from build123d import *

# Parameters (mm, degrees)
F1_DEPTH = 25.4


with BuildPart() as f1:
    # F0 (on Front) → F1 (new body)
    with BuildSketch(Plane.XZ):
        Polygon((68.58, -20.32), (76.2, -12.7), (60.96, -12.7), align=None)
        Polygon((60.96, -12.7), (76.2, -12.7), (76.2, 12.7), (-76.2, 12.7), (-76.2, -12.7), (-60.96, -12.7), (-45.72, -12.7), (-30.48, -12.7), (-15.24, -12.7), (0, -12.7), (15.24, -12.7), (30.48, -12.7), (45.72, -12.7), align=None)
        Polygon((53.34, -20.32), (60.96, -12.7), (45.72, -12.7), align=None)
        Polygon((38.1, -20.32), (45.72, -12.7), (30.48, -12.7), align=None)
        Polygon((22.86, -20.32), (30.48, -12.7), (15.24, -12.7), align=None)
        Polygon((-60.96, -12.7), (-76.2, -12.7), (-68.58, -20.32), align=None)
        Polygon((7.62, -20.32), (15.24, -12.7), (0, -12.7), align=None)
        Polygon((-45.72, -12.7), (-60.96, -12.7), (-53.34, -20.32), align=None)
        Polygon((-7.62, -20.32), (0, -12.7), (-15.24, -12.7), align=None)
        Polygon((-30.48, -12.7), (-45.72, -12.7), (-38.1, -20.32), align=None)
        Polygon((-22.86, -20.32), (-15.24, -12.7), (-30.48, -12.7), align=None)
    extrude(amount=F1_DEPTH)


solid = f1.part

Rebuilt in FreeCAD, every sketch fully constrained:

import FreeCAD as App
import Part
import Sketcher
from FreeCAD import Vector
Q = App.Units.Quantity

doc = App.newDocument("Part")
body = doc.addObject("PartDesign::Body", "Body")

# Sketch on XZ plane
sketch1 = body.newObject("Sketcher::SketchObject", "Sketch")
sketch1.AttachmentSupport = (doc.getObject("XZ_Plane"), [""])
sketch1.MapMode = "FlatFace"
sketch1.addGeometry(Part.LineSegment(Vector(69, -20, 0), Vector(76, -13, 0)), False)
sketch1.addGeometry(Part.LineSegment(Vector(76, -13, 0), Vector(76, 13, 0)), False)
sketch1.addGeometry(Part.LineSegment(Vector(76, 13, 0), Vector(-76, 13, 0)), False)
sketch1.addGeometry(Part.LineSegment(Vector(-76, 13, 0), Vector(-76, -13, 0)), False)
sketch1.addGeometry(Part.LineSegment(Vector(-76, -13, 0), Vector(-69, -20, 0)), False)
sketch1.addGeometry(Part.LineSegment(Vector(-69, -20, 0), Vector(-61, -13, 0)), False)
sketch1.addGeometry(Part.LineSegment(Vector(-61, -13, 0), Vector(-53, -20, 0)), False)
sketch1.addGeometry(Part.LineSegment(Vector(-53, -20, 0), Vector(-46, -13, 0)), False)
sketch1.addGeometry(Part.LineSegment(Vector(-46, -13, 0), Vector(-38, -20, 0)), False)
sketch1.addGeometry(Part.LineSegment(Vector(-38, -20, 0), Vector(-30, -13, 0)), False)
sketch1.addGeometry(Part.LineSegment(Vector(-30, -13, 0), Vector(-23, -20, 0)), False)
sketch1.addGeometry(Part.LineSegment(Vector(-23, -20, 0), Vector(-15, -13, 0)), False)
sketch1.addGeometry(Part.LineSegment(Vector(-15, -13, 0), Vector(-8, -20, 0)), False)
sketch1.addGeometry(Part.LineSegment(Vector(-8, -20, 0), Vector(0, -13, 0)), False)
sketch1.addGeometry(Part.LineSegment(Vector(0, -13, 0), Vector(8, -20, 0)), False)
sketch1.addGeometry(Part.LineSegment(Vector(8, -20, 0), Vector(15, -13, 0)), False)
sketch1.addGeometry(Part.LineSegment(Vector(15, -13, 0), Vector(23, -20, 0)), False)
sketch1.addGeometry(Part.LineSegment(Vector(23, -20, 0), Vector(30, -13, 0)), False)
sketch1.addGeometry(Part.LineSegment(Vector(30, -13, 0), Vector(38, -20, 0)), False)
sketch1.addGeometry(Part.LineSegment(Vector(38, -20, 0), Vector(46, -13, 0)), False)
sketch1.addGeometry(Part.LineSegment(Vector(46, -13, 0), Vector(53, -20, 0)), False)
sketch1.addGeometry(Part.LineSegment(Vector(53, -20, 0), Vector(61, -13, 0)), False)
sketch1.addGeometry(Part.LineSegment(Vector(61, -13, 0), Vector(69, -20, 0)), False)
sketch1.addConstraint(Sketcher.Constraint("Coincident", 0, 2, 1, 1))
sketch1.addConstraint(Sketcher.Constraint("Coincident", 1, 2, 2, 1))
sketch1.addConstraint(Sketcher.Constraint("Coincident", 2, 2, 3, 1))
sketch1.addConstraint(Sketcher.Constraint("Coincident", 3, 2, 4, 1))
sketch1.addConstraint(Sketcher.Constraint("Coincident", 4, 2, 5, 1))
sketch1.addConstraint(Sketcher.Constraint("Coincident", 5, 2, 6, 1))
sketch1.addConstraint(Sketcher.Constraint("Coincident", 6, 2, 7, 1))
sketch1.addConstraint(Sketcher.Constraint("Coincident", 7, 2, 8, 1))
sketch1.addConstraint(Sketcher.Constraint("Coincident", 8, 2, 9, 1))
sketch1.addConstraint(Sketcher.Constraint("Coincident", 9, 2, 10, 1))
sketch1.addConstraint(Sketcher.Constraint("Coincident", 10, 2, 11, 1))
sketch1.addConstraint(Sketcher.Constraint("Coincident", 11, 2, 12, 1))
sketch1.addConstraint(Sketcher.Constraint("Coincident", 12, 2, 13, 1))
sketch1.addConstraint(Sketcher.Constraint("Coincident", 13, 2, 14, 1))
sketch1.addConstraint(Sketcher.Constraint("Coincident", 14, 2, 15, 1))
sketch1.addConstraint(Sketcher.Constraint("Coincident", 15, 2, 16, 1))
sketch1.addConstraint(Sketcher.Constraint("Coincident", 16, 2, 17, 1))
sketch1.addConstraint(Sketcher.Constraint("Coincident", 17, 2, 18, 1))
sketch1.addConstraint(Sketcher.Constraint("Coincident", 18, 2, 19, 1))
sketch1.addConstraint(Sketcher.Constraint("Coincident", 19, 2, 20, 1))
sketch1.addConstraint(Sketcher.Constraint("Coincident", 20, 2, 21, 1))
sketch1.addConstraint(Sketcher.Constraint("Coincident", 21, 2, 22, 1))
sketch1.addConstraint(Sketcher.Constraint("Coincident", 22, 2, 0, 1))
sketch1.addConstraint(Sketcher.Constraint("Vertical", 1))
sketch1.addConstraint(Sketcher.Constraint("Horizontal", 2))
sketch1.addConstraint(Sketcher.Constraint("Vertical", 3))
sketch1.addConstraint(Sketcher.Constraint("Symmetric", 0, 2, 2, 2, -1, 1))
sketch1.addConstraint(Sketcher.Constraint("Symmetric", 12, 2, 14, 2, -2))
sketch1.addConstraint(Sketcher.Constraint("Symmetric", 11, 2, 15, 2, -2))
sketch1.addConstraint(Sketcher.Constraint("Symmetric", 10, 2, 16, 2, -2))
sketch1.addConstraint(Sketcher.Constraint("Symmetric", 9, 2, 17, 2, -2))
sketch1.addConstraint(Sketcher.Constraint("Symmetric", 8, 2, 18, 2, -2))
sketch1.addConstraint(Sketcher.Constraint("Symmetric", 7, 2, 19, 2, -2))
sketch1.addConstraint(Sketcher.Constraint("Symmetric", 6, 2, 20, 2, -2))
sketch1.addConstraint(Sketcher.Constraint("Symmetric", 5, 2, 21, 2, -2))
sketch1.addConstraint(Sketcher.Constraint("Symmetric", 4, 2, 22, 2, -2))
sketch1.addConstraint(Sketcher.Constraint("PointOnObject", 13, 2, -2))
sketch1.addConstraint(Sketcher.Constraint("Perpendicular", 0, 4))
sketch1.addConstraint(Sketcher.Constraint("Perpendicular", 4, 5))
sketch1.addConstraint(Sketcher.Constraint("Perpendicular", 5, 6))
sketch1.addConstraint(Sketcher.Constraint("Perpendicular", 6, 7))
sketch1.addConstraint(Sketcher.Constraint("Perpendicular", 7, 8))
sketch1.addConstraint(Sketcher.Constraint("Perpendicular", 8, 9))
sketch1.addConstraint(Sketcher.Constraint("Perpendicular", 9, 10))
sketch1.addConstraint(Sketcher.Constraint("Perpendicular", 10, 11))
sketch1.addConstraint(Sketcher.Constraint("Perpendicular", 11, 12))
sketch1.addConstraint(Sketcher.Constraint("Perpendicular", 12, 13))
sketch1.addConstraint(Sketcher.Constraint("Perpendicular", 13, 14))
sketch1.addConstraint(Sketcher.Constraint("Horizontal", 3, 2, 5, 2))
sketch1.addConstraint(Sketcher.Constraint("Horizontal", 4, 2, 6, 2))
sketch1.addConstraint(Sketcher.Constraint("Horizontal", 5, 2, 7, 2))
sketch1.addConstraint(Sketcher.Constraint("Horizontal", 6, 2, 8, 2))
sketch1.addConstraint(Sketcher.Constraint("Horizontal", 7, 2, 9, 2))
sketch1.addConstraint(Sketcher.Constraint("Horizontal", 8, 2, 10, 2))
sketch1.addConstraint(Sketcher.Constraint("Horizontal", 9, 2, 11, 2))
sketch1.addConstraint(Sketcher.Constraint("Horizontal", 10, 2, 12, 2))
sketch1.addConstraint(Sketcher.Constraint("Horizontal", 11, 2, 13, 2))
sketch1.addConstraint(Sketcher.Constraint("DistanceX", 2, 2, 2, 1, Q("6 in")))
sketch1.addConstraint(Sketcher.Constraint("DistanceY", 1, 1, 1, 2, Q("1 in")))
pad1 = body.newObject("PartDesign::Pad", "Pad")
pad1.Profile = sketch1
pad1.Length = Q("1 in")

doc.recompute()
